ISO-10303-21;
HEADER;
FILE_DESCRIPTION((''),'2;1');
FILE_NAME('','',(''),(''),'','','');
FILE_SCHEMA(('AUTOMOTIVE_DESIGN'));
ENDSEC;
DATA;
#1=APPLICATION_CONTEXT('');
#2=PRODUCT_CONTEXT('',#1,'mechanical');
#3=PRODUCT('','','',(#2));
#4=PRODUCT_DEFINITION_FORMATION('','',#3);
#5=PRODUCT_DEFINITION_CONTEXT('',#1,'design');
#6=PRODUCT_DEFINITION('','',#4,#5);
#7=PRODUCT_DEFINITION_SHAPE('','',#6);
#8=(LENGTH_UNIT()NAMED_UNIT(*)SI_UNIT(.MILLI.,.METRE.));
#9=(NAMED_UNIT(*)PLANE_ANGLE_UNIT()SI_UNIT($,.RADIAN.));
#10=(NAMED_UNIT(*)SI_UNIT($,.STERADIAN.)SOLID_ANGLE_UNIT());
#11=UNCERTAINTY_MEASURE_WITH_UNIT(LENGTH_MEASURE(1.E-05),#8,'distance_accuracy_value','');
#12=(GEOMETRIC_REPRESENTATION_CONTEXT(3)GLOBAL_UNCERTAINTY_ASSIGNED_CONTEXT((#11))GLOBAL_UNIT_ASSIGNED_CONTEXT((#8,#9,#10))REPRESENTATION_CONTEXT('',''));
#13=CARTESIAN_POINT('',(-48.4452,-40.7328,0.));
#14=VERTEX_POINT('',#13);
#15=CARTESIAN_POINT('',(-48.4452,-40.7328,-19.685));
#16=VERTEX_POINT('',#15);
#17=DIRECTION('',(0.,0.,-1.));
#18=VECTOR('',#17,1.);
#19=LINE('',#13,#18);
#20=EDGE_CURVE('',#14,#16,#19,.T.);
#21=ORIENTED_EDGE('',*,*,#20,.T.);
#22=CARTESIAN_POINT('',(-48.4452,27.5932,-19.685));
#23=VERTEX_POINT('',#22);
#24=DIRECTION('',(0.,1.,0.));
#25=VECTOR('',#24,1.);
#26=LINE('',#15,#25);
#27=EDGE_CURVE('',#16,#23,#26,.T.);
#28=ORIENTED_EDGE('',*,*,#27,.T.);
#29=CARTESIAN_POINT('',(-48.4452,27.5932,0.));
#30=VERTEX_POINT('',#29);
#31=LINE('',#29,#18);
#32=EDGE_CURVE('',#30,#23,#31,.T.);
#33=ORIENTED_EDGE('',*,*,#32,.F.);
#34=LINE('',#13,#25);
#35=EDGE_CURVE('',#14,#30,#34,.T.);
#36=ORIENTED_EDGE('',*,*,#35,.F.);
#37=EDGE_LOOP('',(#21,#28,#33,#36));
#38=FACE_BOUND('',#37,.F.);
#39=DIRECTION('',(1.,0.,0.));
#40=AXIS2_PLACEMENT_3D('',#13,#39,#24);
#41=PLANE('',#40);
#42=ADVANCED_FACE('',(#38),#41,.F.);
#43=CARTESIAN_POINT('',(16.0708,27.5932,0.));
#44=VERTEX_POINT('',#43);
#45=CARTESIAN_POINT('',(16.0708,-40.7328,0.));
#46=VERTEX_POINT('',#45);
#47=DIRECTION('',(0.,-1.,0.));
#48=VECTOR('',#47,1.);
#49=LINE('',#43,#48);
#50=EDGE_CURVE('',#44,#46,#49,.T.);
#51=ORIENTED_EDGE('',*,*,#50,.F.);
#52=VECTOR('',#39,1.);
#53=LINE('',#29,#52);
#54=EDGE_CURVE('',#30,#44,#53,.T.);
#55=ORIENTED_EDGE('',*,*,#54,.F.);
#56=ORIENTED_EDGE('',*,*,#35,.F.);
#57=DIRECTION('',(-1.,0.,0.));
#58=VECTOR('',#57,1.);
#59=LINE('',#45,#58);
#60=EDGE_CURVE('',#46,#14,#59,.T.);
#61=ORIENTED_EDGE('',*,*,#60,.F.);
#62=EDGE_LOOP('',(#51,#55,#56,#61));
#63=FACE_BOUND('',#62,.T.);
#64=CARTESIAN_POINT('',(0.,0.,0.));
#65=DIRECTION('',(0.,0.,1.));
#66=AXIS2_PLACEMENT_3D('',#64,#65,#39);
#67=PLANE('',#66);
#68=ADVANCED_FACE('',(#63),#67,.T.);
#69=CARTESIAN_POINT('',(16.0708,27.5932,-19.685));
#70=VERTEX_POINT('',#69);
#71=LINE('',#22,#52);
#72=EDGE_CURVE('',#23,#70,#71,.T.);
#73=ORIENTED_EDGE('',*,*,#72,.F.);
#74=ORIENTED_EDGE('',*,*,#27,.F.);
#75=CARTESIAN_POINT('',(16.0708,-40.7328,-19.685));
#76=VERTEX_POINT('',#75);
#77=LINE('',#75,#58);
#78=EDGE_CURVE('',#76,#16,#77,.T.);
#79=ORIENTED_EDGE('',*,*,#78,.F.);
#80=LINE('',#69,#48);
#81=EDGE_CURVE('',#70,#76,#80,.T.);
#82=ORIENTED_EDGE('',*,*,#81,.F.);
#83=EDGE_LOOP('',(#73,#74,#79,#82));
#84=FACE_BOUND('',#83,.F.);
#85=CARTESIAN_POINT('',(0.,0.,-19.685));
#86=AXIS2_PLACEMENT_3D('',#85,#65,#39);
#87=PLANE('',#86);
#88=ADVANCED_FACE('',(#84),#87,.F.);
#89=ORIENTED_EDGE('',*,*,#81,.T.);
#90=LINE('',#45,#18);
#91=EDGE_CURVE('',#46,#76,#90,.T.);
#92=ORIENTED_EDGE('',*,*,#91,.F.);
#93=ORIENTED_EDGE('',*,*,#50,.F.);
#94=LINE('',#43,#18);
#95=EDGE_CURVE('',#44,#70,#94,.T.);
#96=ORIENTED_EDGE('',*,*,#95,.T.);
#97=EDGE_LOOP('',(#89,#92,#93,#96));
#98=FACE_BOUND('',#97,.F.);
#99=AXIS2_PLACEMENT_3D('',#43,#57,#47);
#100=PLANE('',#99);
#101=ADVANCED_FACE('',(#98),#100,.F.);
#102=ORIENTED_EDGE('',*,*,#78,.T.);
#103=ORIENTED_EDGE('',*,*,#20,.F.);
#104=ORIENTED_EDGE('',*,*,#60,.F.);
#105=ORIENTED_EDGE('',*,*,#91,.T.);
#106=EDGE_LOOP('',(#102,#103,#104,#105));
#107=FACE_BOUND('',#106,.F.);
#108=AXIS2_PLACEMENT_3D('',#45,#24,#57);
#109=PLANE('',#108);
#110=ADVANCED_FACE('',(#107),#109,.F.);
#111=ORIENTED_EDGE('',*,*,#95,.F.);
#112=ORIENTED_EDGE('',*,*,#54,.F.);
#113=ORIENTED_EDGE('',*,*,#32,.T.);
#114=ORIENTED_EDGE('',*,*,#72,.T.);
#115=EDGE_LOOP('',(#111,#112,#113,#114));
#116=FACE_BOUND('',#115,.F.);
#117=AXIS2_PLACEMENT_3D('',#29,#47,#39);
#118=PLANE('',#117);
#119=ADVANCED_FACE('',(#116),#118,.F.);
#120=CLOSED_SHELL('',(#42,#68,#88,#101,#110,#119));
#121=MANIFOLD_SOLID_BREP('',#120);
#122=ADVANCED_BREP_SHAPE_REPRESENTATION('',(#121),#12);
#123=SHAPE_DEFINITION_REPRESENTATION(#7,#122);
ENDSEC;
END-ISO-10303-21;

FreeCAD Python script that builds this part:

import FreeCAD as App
import Part
import Sketcher
from FreeCAD import Vector
Q = App.Units.Quantity


def add_polygon(sketch, points):
    """Adds a closed chain of lines whose ends are joined by coincident constraints."""
    first, n = sketch.GeometryCount, len(points)
    for a, b in zip(points, points[1:] + points[:1]):
        sketch.addGeometry(Part.LineSegment(App.Vector(*a, 0), App.Vector(*b, 0)), False)
    for i in range(n):
        sketch.addConstraint(Sketcher.Constraint("Coincident", first + i, 2, first + (i + 1) % n, 1))

doc = App.newDocument("Part")
body = doc.addObject("PartDesign::Body", "Body")

# Sketch on XY plane
sketch1 = body.newObject("Sketcher::SketchObject", "Sketch")
sketch1.AttachmentSupport = (doc.getObject("XY_Plane"), [""])
sketch1.MapMode = "FlatFace"
add_polygon(sketch1, [(16, 28), (-48, 28), (-48, -41), (16, -41)])  # lines 0-3
sketch1.addConstraint(Sketcher.Constraint("Horizontal", 0))
sketch1.addConstraint(Sketcher.Constraint("Vertical", 1))
sketch1.addConstraint(Sketcher.Constraint("Horizontal", 2))
sketch1.addConstraint(Sketcher.Constraint("Vertical", 3))
sketch1.addConstraint(Sketcher.Constraint("DistanceX", 0, 2, 0, 1, Q("2.54 in")))
sketch1.addConstraint(Sketcher.Constraint("DistanceY", 1, 2, 1, 1, Q("2.69 in")))
sketch1.addConstraint(Sketcher.Constraint("DistanceX", 0, 2, -1, 1, Q("1.9073 in")))
sketch1.addConstraint(Sketcher.Constraint("DistanceY", -1, 1, 0, 2, Q("27.5932 mm")))
pad1 = body.newObject("PartDesign::Pad", "Pad")
pad1.Profile = sketch1
pad1.Length = Q("0.775 in")
pad1.Reversed = True

doc.recompute()
